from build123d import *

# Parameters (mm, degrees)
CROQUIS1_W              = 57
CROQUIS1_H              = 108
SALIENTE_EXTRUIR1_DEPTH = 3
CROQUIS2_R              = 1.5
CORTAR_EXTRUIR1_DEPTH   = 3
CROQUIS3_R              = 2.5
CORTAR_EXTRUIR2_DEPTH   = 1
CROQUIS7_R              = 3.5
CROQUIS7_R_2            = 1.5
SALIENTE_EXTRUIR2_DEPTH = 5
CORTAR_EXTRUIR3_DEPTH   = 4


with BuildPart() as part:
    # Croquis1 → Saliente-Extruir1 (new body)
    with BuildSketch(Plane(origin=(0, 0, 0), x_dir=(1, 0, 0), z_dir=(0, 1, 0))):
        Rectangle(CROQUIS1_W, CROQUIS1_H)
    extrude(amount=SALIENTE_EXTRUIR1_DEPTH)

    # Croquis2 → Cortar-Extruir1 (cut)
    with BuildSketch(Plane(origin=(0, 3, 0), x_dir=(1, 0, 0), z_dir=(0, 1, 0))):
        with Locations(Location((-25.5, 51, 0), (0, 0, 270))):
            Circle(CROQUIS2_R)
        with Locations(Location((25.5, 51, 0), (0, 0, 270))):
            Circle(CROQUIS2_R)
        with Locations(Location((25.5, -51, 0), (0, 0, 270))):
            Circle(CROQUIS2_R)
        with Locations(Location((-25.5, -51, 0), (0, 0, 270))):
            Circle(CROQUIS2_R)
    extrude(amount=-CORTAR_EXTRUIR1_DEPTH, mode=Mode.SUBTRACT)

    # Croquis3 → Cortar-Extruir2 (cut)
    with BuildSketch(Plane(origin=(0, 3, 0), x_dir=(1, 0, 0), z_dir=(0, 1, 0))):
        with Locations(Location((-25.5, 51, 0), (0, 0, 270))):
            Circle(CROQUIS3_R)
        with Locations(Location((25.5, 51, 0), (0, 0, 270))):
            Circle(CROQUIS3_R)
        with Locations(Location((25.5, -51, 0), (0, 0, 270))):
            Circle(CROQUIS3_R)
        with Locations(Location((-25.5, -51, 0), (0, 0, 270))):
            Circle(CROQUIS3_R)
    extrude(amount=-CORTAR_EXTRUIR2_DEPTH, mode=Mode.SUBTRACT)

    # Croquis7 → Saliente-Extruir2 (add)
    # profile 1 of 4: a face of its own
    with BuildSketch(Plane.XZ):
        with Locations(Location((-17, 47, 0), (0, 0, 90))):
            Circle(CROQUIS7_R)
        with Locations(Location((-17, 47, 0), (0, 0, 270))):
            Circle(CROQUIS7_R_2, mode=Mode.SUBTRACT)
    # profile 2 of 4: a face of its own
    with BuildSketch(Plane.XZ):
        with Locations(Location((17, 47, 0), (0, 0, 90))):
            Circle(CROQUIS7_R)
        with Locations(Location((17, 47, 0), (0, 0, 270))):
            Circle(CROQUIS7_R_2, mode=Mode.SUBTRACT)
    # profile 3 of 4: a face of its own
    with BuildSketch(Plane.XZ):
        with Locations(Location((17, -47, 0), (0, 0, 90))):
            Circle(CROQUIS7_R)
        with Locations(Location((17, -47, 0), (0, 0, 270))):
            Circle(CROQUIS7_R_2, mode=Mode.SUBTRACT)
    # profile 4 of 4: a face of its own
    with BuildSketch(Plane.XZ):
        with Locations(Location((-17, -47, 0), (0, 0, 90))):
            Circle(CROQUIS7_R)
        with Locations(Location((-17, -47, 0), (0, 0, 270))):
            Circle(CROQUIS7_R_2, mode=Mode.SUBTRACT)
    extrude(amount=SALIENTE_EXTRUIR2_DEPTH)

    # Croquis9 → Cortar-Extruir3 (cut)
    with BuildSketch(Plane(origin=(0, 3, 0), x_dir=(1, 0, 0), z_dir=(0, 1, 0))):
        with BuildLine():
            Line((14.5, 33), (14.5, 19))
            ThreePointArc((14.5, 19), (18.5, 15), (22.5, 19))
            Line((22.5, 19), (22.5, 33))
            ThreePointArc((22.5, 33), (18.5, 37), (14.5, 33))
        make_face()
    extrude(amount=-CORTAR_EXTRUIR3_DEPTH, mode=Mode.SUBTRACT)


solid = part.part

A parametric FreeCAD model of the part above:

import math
import FreeCAD as App
import Part
import Sketcher
from FreeCAD import Vector
Q = App.Units.Quantity

doc = App.newDocument("Part")
body = doc.addObject("PartDesign::Body", "Body")

# Sketch on XZ plane
sketch1 = doc.addObject("Sketcher::SketchObject", "Sketch")
body.addObject(sketch1)
sketch1.AttachmentSupport = (doc.XZ_Plane, [""])
sketch1.MapMode = "FlatFace"
sketch1.addGeometry([
    Part.LineSegment(Vector(-28, -54, 0), Vector(-28, 54, 0)),
    Part.LineSegment(Vector(-28, 54, 0), Vector(28, 54, 0)),
    Part.LineSegment(Vector(28, 54, 0), Vector(28, -54, 0)),
    Part.LineSegment(Vector(28, -54, 0), Vector(-28, -54, 0)),
], False)
sketch1.addConstraint([
    Sketcher.Constraint("Coincident", 0, 2, 1, 1),
    Sketcher.Constraint("Coincident", 1, 2, 2, 1),
    Sketcher.Constraint("Coincident", 2, 2, 3, 1),
    Sketcher.Constraint("Coincident", 3, 2, 0, 1),
    Sketcher.Constraint("Vertical", 0),
    Sketcher.Constraint("Horizontal", 1),
    Sketcher.Constraint("Vertical", 2),
    Sketcher.Constraint("Horizontal", 3),
    Sketcher.Constraint("Symmetric", 0, 2, 2, 2, -1, 1),
    Sketcher.Constraint("DistanceX", 1, 1, 1, 2, Q("57 mm")),
    Sketcher.Constraint("DistanceY", 0, 1, 0, 2, Q("108 mm")),
])
pad1 = doc.addObject("PartDesign::Pad", "Pad")
body.addObject(pad1)
pad1.Profile = sketch1
pad1.Length = 3
pad1.Reversed = True

# Sketch on XZ plane
sketch2 = doc.addObject("Sketcher::SketchObject", "Sketch001")
body.addObject(sketch2)
sketch2.AttachmentSupport = (doc.XZ_Plane, [""])
sketch2.MapMode = "FlatFace"
sketch2.AttachmentOffset = App.Placement(Vector(0, 0, -3), App.Rotation())
sketch2.addGeometry([
    Part.Circle(Vector(-25.5, -51, 0), Vector(0, 0, 1), 1.5),
    Part.Circle(Vector(25.5, -51, 0), Vector(0, 0, 1), 1.5),
    Part.Circle(Vector(25.5, 51, 0), Vector(0, 0, 1), 1.5),
    Part.Circle(Vector(-25.5, 51, 0), Vector(0, 0, 1), 1.5),
], False)
sketch2.addConstraint([
    Sketcher.Constraint("Equal", 0, 1),
    Sketcher.Constraint("Equal", 1, 2),
    Sketcher.Constraint("Equal", 2, 3),
    Sketcher.Constraint("Symmetric", 0, 3, 2, 3, -1, 1),
    Sketcher.Constraint("Symmetric", 1, 3, 3, 3, -1, 1),
    Sketcher.Constraint("Symmetric", 0, 3, 1, 3, -2),
    Sketcher.Constraint("Diameter", 0, Q("3 mm")),
    Sketcher.Constraint("DistanceY", 0, 3, -1, 1, Q("51 mm")),
    Sketcher.Constraint("DistanceX", 0, 3, 1, 3, Q("51 mm")),
])
pocket1 = doc.addObject("PartDesign::Pocket", "Pocket")
body.addObject(pocket1)
pocket1.Profile = sketch2
pocket1.Length = 3
pocket1.Reversed = True

# Sketch on XZ plane
sketch3 = doc.addObject("Sketcher::SketchObject", "Sketch002")
body.addObject(sketch3)
sketch3.AttachmentSupport = (doc.XZ_Plane, [""])
sketch3.MapMode = "FlatFace"
sketch3.AttachmentOffset = App.Placement(Vector(0, 0, -3), App.Rotation())
sketch3.addGeometry([
    Part.Circle(Vector(-25.5, -51, 0), Vector(0, 0, 1), 2.5),
    Part.Circle(Vector(25.5, -51, 0), Vector(0, 0, 1), 2.5),
    Part.Circle(Vector(25.5, 51, 0), Vector(0, 0, 1), 2.5),
    Part.Circle(Vector(-25.5, 51, 0), Vector(0, 0, 1), 2.5),
], False)
sketch3.addConstraint([
    Sketcher.Constraint("Equal", 0, 1),
    Sketcher.Constraint("Equal", 1, 2),
    Sketcher.Constraint("Equal", 2, 3),
    Sketcher.Constraint("Symmetric", 0, 3, 2, 3, -1, 1),
    Sketcher.Constraint("Symmetric", 1, 3, 3, 3, -1, 1),
    Sketcher.Constraint("Symmetric", 0, 3, 1, 3, -2),
    Sketcher.Constraint("Diameter", 0, Q("5 mm")),
    Sketcher.Constraint("DistanceY", 0, 3, -1, 1, Q("51 mm")),
    Sketcher.Constraint("DistanceX", 0, 3, 1, 3, Q("51 mm")),
])
pocket2 = doc.addObject("PartDesign::Pocket", "Pocket001")
body.addObject(pocket2)
pocket2.Profile = sketch3
pocket2.Length = 1
pocket2.Reversed = True

# Sketch on XZ plane
sketch4 = doc.addObject("Sketcher::SketchObject", "Sketch003")
body.addObject(sketch4)
sketch4.AttachmentSupport = (doc.XZ_Plane, [""])
sketch4.MapMode = "FlatFace"
sketch4.addGeometry([
    Part.Circle(Vector(-17, 47, 0), Vector(0, 0, 1), 3.5),  # 0
    Part.Circle(Vector(-17, 47, 0), Vector(0, 0, 1), 1.5),  # 1
    Part.Circle(Vector(17, 47, 0), Vector(0, 0, 1), 3.5),  # 2
    Part.Circle(Vector(17, 47, 0), Vector(0, 0, 1), 1.5),  # 3
    Part.Circle(Vector(17, -47, 0), Vector(0, 0, 1), 3.5),  # 4
    Part.Circle(Vector(17, -47, 0), Vector(0, 0, 1), 1.5),  # 5
    Part.Circle(Vector(-17, -47, 0), Vector(0, 0, 1), 3.5),  # 6
    Part.Circle(Vector(-17, -47, 0), Vector(0, 0, 1), 1.5),  # 7
], False)
sketch4.addConstraint([
    Sketcher.Constraint("Coincident", 1, 3, 0, 3),
    Sketcher.Constraint("Coincident", 3, 3, 2, 3),
    Sketcher.Constraint("Coincident", 5, 3, 4, 3),
    Sketcher.Constraint("Coincident", 7, 3, 6, 3),
    Sketcher.Constraint("Equal", 0, 2),
    Sketcher.Constraint("Equal", 1, 3),
    Sketcher.Constraint("Equal", 2, 4),
    Sketcher.Constraint("Equal", 3, 5),
    Sketcher.Constraint("Equal", 4, 6),
    Sketcher.Constraint("Equal", 5, 7),
    Sketcher.Constraint("Symmetric", 0, 3, 4, 3, -1, 1),
    Sketcher.Constraint("Symmetric", 2, 3, 6, 3, -1, 1),
    Sketcher.Constraint("Symmetric", 0, 3, 2, 3, -2),
    Sketcher.Constraint("Diameter", 0, Q("7 mm")),
    Sketcher.Constraint("Diameter", 1, Q("3 mm")),
    Sketcher.Constraint("DistanceX", 0, 3, -1, 1, Q("17 mm")),
    Sketcher.Constraint("DistanceY", -1, 1, 0, 3, Q("47 mm")),
])
pad2 = doc.addObject("PartDesign::Pad", "Pad001")
body.addObject(pad2)
pad2.Profile = sketch4
pad2.Length = 5

# Sketch on XZ plane
sketch5 = doc.addObject("Sketcher::SketchObject", "Sketch004")
body.addObject(sketch5)
sketch5.AttachmentSupport = (doc.XZ_Plane, [""])
sketch5.MapMode = "FlatFace"
sketch5.AttachmentOffset = App.Placement(Vector(0, 0, -3), App.Rotation())
sketch5.addGeometry([
    Part.LineSegment(Vector(14.5, -33, 0), Vector(14.5, -19, 0)),
    Part.ArcOfCircle(Part.Circle(Vector(18.5, -19, 0), Vector(0, 0, 1), 4), math.radians(0), math.radians(180)),
    Part.LineSegment(Vector(22.5, -19, 0), Vector(22.5, -33, 0)),
    Part.ArcOfCircle(Part.Circle(Vector(18.5, -33, 0), Vector(0, 0, 1), 4), math.radians(180), math.radians(360)),
], False)
sketch5.addConstraint([
    Sketcher.Constraint("Tangent", 0, 2, 1, 2),
    Sketcher.Constraint("Tangent", 1, 1, 2, 1),
    Sketcher.Constraint("Tangent", 2, 2, 3, 2),
    Sketcher.Constraint("Tangent", 3, 1, 0, 1),
    Sketcher.Constraint("Vertical", 0),
    Sketcher.Constraint("Vertical", 2),
    Sketcher.Constraint("Radius", 1, Q("4 mm")),
    Sketcher.Constraint("DistanceY", 0, 1, 0, 2, Q("14 mm")),
    Sketcher.Constraint("DistanceY", 1, 3, -1, 1, Q("19 mm")),
    Sketcher.Constraint("DistanceX", -1, 1, 1, 3, Q("18.5 mm")),
])
pocket3 = doc.addObject("PartDesign::Pocket", "Pocket002")
body.addObject(pocket3)
pocket3.Profile = sketch5
pocket3.Length = 4
pocket3.Reversed = True

doc.recompute()
